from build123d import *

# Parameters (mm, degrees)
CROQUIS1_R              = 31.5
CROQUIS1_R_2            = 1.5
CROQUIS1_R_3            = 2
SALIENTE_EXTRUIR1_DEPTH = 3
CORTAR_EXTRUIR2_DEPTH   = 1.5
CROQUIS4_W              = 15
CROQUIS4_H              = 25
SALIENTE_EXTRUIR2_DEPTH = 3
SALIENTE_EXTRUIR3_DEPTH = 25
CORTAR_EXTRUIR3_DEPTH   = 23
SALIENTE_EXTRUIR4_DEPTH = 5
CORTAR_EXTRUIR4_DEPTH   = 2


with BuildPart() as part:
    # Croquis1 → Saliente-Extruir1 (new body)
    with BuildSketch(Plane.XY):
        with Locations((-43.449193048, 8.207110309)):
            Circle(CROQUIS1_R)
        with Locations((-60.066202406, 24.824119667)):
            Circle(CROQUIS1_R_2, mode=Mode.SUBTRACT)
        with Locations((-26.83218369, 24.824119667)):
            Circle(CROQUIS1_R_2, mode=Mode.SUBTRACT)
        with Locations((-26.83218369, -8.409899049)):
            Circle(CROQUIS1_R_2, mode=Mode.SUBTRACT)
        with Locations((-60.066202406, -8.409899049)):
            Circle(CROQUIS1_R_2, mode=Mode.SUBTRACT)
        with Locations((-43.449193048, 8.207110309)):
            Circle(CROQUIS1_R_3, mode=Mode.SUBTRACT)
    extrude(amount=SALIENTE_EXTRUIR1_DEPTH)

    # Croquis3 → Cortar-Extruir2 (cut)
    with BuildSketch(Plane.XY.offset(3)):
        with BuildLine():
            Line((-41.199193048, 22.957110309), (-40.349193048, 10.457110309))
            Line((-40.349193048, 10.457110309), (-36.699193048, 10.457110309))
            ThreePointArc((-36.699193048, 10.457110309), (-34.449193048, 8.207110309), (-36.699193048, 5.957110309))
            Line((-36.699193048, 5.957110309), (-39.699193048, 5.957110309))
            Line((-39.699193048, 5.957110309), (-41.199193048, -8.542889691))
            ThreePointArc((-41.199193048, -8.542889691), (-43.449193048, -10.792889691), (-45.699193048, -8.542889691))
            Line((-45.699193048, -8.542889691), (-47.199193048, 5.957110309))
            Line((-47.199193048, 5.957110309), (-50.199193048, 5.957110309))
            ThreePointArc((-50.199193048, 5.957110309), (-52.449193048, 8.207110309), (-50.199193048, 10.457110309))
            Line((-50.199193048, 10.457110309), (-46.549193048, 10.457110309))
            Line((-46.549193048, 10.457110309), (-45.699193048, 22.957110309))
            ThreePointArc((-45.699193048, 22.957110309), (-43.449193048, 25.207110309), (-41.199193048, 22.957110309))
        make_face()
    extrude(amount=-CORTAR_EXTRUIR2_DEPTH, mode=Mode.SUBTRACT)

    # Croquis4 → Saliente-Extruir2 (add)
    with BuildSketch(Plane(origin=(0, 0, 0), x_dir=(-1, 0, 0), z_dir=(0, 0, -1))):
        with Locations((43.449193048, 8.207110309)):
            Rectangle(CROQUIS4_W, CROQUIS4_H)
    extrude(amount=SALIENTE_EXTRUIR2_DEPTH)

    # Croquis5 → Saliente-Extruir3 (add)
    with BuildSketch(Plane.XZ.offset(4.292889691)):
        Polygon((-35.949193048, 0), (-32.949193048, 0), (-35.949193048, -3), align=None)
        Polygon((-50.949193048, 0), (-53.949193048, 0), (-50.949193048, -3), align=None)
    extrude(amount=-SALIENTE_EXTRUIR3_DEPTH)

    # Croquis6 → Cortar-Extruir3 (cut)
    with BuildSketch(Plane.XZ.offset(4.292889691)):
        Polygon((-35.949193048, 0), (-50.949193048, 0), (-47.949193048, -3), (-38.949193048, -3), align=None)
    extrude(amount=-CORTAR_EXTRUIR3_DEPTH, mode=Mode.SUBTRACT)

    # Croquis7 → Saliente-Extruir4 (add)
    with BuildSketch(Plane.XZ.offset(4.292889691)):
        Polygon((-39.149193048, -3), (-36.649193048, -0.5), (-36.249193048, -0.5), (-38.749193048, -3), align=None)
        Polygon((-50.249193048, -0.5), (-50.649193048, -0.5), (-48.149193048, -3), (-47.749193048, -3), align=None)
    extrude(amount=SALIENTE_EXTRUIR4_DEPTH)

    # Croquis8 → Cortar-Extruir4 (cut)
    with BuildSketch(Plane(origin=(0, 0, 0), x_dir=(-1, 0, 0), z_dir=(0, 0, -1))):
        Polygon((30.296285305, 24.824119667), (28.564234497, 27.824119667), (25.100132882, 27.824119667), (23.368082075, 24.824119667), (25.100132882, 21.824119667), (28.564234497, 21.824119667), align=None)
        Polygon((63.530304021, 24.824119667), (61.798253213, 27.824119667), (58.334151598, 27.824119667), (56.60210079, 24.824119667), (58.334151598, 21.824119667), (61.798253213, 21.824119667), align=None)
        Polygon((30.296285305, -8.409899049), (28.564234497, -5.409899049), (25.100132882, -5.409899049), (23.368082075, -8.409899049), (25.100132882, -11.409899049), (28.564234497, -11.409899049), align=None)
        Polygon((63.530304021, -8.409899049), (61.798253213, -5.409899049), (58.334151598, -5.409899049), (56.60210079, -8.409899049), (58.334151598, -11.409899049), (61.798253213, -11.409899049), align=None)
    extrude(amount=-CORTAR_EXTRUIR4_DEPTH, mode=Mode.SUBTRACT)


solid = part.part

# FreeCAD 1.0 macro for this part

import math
import FreeCAD as App
import Part
import Sketcher

V = App.Vector
Q = App.Units.Quantity

doc = App.newDocument("Part")
body = doc.addObject("PartDesign::Body", "Body")

# Sketch on XY plane
sketch1 = body.newObject("Sketcher::SketchObject", "Sketch")
sketch1.AttachmentSupport = (doc.getObject("XY_Plane"), [""])
sketch1.MapMode = "FlatFace"
sketch1.addGeometry([
    Part.Circle(V(-43.449193, 8.20711, 0), V(0, 0, 1), 31.5),  # 0
    Part.Circle(V(-60.066202, -8.409899, 0), V(0, 0, 1), 1.5),  # 1
    Part.Circle(V(-26.832184, -8.409899, 0), V(0, 0, 1), 1.5),  # 2
    Part.Circle(V(-60.066202, 24.82412, 0), V(0, 0, 1), 1.5),  # 3
    Part.Circle(V(-43.449193, 8.20711, 0), V(0, 0, 1), 2),  # 4
    Part.Circle(V(-26.832184, 24.82412, 0), V(0, 0, 1), 1.5),  # 5
], False)
sketch1.addConstraint([
    Sketcher.Constraint("Coincident", 4, 3, 0, 3),
    Sketcher.Constraint("Equal", 1, 2),
    Sketcher.Constraint("Equal", 2, 3),
    Sketcher.Constraint("Equal", 3, 5),
    Sketcher.Constraint("Horizontal", 1, 3, 2, 3),
    Sketcher.Constraint("Horizontal", 3, 3, 5, 3),
    Sketcher.Constraint("Vertical", 1, 3, 3, 3),
    Sketcher.Constraint("Vertical", 2, 3, 5, 3),
    Sketcher.Constraint("Diameter", 0, 63.0),
    Sketcher.Constraint("Diameter", 1, 3.0),
    Sketcher.Constraint("Diameter", 4, 4.0),
    Sketcher.Constraint("DistanceY", 1, 3, -1, 1, 8.409899),
    Sketcher.Constraint("DistanceY", -1, 1, 0, 3, 8.20711),
    Sketcher.Constraint("DistanceY", -1, 1, 3, 3, 24.82412),
    Sketcher.Constraint("DistanceX", 1, 3, 0, 3, 16.617009),
    Sketcher.Constraint("DistanceX", 0, 3, 2, 3, 16.617009),
    Sketcher.Constraint("DistanceX", 0, 3, -1, 1, 43.449193),
])
pad1 = body.newObject("PartDesign::Pad", "Pad")
pad1.Profile = sketch1
pad1.Length = 3

# Sketch on XY plane
sketch2 = body.newObject("Sketcher::SketchObject", "Sketch001")
sketch2.AttachmentSupport = (doc.getObject("XY_Plane"), [""])
sketch2.MapMode = "FlatFace"
sketch2.AttachmentOffset = App.Placement(V(0, 0, 3), App.Rotation())
sketch2.addGeometry([
    Part.LineSegment(V(-40.349193, 10.45711, 0), V(-41.199193, 22.95711, 0)),  # 0
    Part.ArcOfCircle(Part.Circle(V(-43.449193, 22.95711, 0), V(0, 0, 1), 2.25), math.radians(0), math.radians(180)),  # 1
    Part.LineSegment(V(-45.699193, 22.95711, 0), V(-46.549193, 10.45711, 0)),  # 2
    Part.LineSegment(V(-46.549193, 10.45711, 0), V(-50.199193, 10.45711, 0)),  # 3
    Part.ArcOfCircle(Part.Circle(V(-50.199193, 8.20711, 0), V(0, 0, 1), 2.25), math.radians(90), math.radians(270)),  # 4
    Part.LineSegment(V(-50.199193, 5.95711, 0), V(-47.199193, 5.95711, 0)),  # 5
    Part.LineSegment(V(-47.199193, 5.95711, 0), V(-45.699193, -8.54289, 0)),  # 6
    Part.ArcOfCircle(Part.Circle(V(-43.449193, -8.54289, 0), V(0, 0, 1), 2.25), math.radians(180), math.radians(360)),  # 7
    Part.LineSegment(V(-41.199193, -8.54289, 0), V(-39.699193, 5.95711, 0)),  # 8
    Part.LineSegment(V(-39.699193, 5.95711, 0), V(-36.699193, 5.95711, 0)),  # 9
    Part.ArcOfCircle(Part.Circle(V(-36.699193, 8.20711, 0), V(0, 0, 1), 2.25), math.radians(-90), math.radians(90)),  # 10
    Part.LineSegment(V(-36.699193, 10.45711, 0), V(-40.349193, 10.45711, 0)),  # 11
], False)
sketch2.addConstraint([
    Sketcher.Constraint("Coincident", 0, 2, 1, 1),
    Sketcher.Constraint("Coincident", 1, 2, 2, 1),
    Sketcher.Constraint("Coincident", 2, 2, 3, 1),
    Sketcher.Constraint("Tangent", 3, 2, 4, 1),
    Sketcher.Constraint("Tangent", 4, 2, 5, 1),
    Sketcher.Constraint("Coincident", 5, 2, 6, 1),
    Sketcher.Constraint("Coincident", 6, 2, 7, 1),
    Sketcher.Constraint("Coincident", 7, 2, 8, 1),
    Sketcher.Constraint("Coincident", 8, 2, 9, 1),
    Sketcher.Constraint("Tangent", 9, 2, 10, 1),
    Sketcher.Constraint("Tangent", 10, 2, 11, 1),
    Sketcher.Constraint("Coincident", 11, 2, 0, 1),
    Sketcher.Constraint("Horizontal", 3),
    Sketcher.Constraint("Horizontal", 5),
    Sketcher.Constraint("Horizontal", 9),
    Sketcher.Constraint("Horizontal", 11),
    Sketcher.Constraint("Equal", 1, 4),
    Sketcher.Constraint("Equal", 4, 7),
    Sketcher.Constraint("Equal", 7, 10),
    Sketcher.Constraint("Horizontal", 4, 3, 10, 3),
    Sketcher.Constraint("Horizontal", 1, 3, 0, 2),
    Sketcher.Constraint("Horizontal", 0, 2, 1, 2),
    Sketcher.Constraint("Horizontal", 7, 3, 6, 2),
    Sketcher.Constraint("Horizontal", 6, 2, 7, 2),
    Sketcher.Constraint("Vertical", 1, 3, 7, 3),
    Sketcher.Constraint("Equal", 5, 9),
    Sketcher.Constraint("Equal", 3, 11),
    Sketcher.Constraint("Equal", 0, 2),
    Sketcher.Constraint("DistanceX", 5, 1, 5, 2, 3.0),
    Sketcher.Constraint("Radius", 1, 2.25),
    Sketcher.Constraint("DistanceX", 4, 3, 0, 2, 9.0),
    Sketcher.Constraint("DistanceX", 3, 2, 3, 1, 3.65),
    Sketcher.Constraint("DistanceY", 7, 3, 1, 3, 31.5),
    Sketcher.Constraint("DistanceY", 2, 2, 1, 2, 12.5),
    Sketcher.Constraint("DistanceY", -1, 1, 1, 3, 22.95711),
    Sketcher.Constraint("DistanceX", 1, 3, -1, 1, 43.449193),
])
pocket1 = body.newObject("PartDesign::Pocket", "Pocket")
pocket1.Profile = sketch2
pocket1.Length = 1.5

# Sketch on XY plane
sketch3 = body.newObject("Sketcher::SketchObject", "Sketch002")
sketch3.AttachmentSupport = (doc.getObject("XY_Plane"), [""])
sketch3.MapMode = "FlatFace"
sketch3.addGeometry([
    Part.LineSegment(V(-35.949193, 20.70711, 0), V(-35.949193, -4.29289, 0)),
    Part.LineSegment(V(-35.949193, -4.29289, 0), V(-50.949193, -4.29289, 0)),
    Part.LineSegment(V(-50.949193, -4.29289, 0), V(-50.949193, 20.70711, 0)),
    Part.LineSegment(V(-50.949193, 20.70711, 0), V(-35.949193, 20.70711, 0)),
], False)
sketch3.addConstraint([
    Sketcher.Constraint("Coincident", 0, 2, 1, 1),
    Sketcher.Constraint("Coincident", 1, 2, 2, 1),
    Sketcher.Constraint("Coincident", 2, 2, 3, 1),
    Sketcher.Constraint("Coincident", 3, 2, 0, 1),
    Sketcher.Constraint("Vertical", 0),
    Sketcher.Constraint("Horizontal", 1),
    Sketcher.Constraint("Vertical", 2),
    Sketcher.Constraint("Horizontal", 3),
    Sketcher.Constraint("DistanceX", 1, 2, 1, 1, 15.0),
    Sketcher.Constraint("DistanceY", 0, 2, 0, 1, 25.0),
    Sketcher.Constraint("DistanceY", 0, 2, -1, 1, 4.29289),
    Sketcher.Constraint("DistanceX", 0, 2, -1, 1, 35.949193),
])
pad2 = body.newObject("PartDesign::Pad", "Pad001")
pad2.Profile = sketch3
pad2.Length = 3
pad2.Reversed = True

# Sketch on XZ plane
sketch4 = body.newObject("Sketcher::SketchObject", "Sketch003")
sketch4.AttachmentSupport = (doc.getObject("XZ_Plane"), [""])
sketch4.MapMode = "FlatFace"
sketch4.AttachmentOffset = App.Placement(V(0, 0, 4.29289), App.Rotation())
sketch4.addGeometry([
    Part.LineSegment(V(-32.949193, 0, 0), V(-35.949193, 0, 0)),  # 0
    Part.LineSegment(V(-35.949193, 0, 0), V(-35.949193, -3, 0)),  # 1
    Part.LineSegment(V(-35.949193, -3, 0), V(-32.949193, 0, 0)),  # 2
    Part.LineSegment(V(-50.949193, 0, 0), V(-53.949193, 0, 0)),  # 3
    Part.LineSegment(V(-53.949193, 0, 0), V(-50.949193, -3, 0)),  # 4
    Part.LineSegment(V(-50.949193, -3, 0), V(-50.949193, 0, 0)),  # 5
], False)
sketch4.addConstraint([
    Sketcher.Constraint("Coincident", 0, 2, 1, 1),
    Sketcher.Constraint("Coincident", 1, 2, 2, 1),
    Sketcher.Constraint("Coincident", 2, 2, 0, 1),
    Sketcher.Constraint("Coincident", 3, 2, 4, 1),
    Sketcher.Constraint("Coincident", 4, 2, 5, 1),
    Sketcher.Constraint("Coincident", 5, 2, 3, 1),
    Sketcher.Constraint("Horizontal", 0),
    Sketcher.Constraint("Vertical", 1),
    Sketcher.Constraint("Horizontal", 3),
    Sketcher.Constraint("Vertical", 5),
    Sketcher.Constraint("PointOnObject", 0, 2, -1),
    Sketcher.Constraint("PointOnObject", 3, 2, -1),
    Sketcher.Constraint("Perpendicular", 2, 4),
    Sketcher.Constraint("Horizontal", 1, 2, 4, 2),
    Sketcher.Constraint("Equal", 0, 3),
    Sketcher.Constraint("DistanceX", 0, 2, 0, 1, 3.0),
    Sketcher.Constraint("DistanceX", 3, 2, 0, 2, 18.0),
    Sketcher.Constraint("DistanceX", 0, 2, -1, 1, 35.949193),
])
pad3 = body.newObject("PartDesign::Pad", "Pad002")
pad3.Profile = sketch4
pad3.Length = 25
pad3.Reversed = True

# Sketch on XZ plane
sketch5 = body.newObject("Sketcher::SketchObject", "Sketch004")
sketch5.AttachmentSupport = (doc.getObject("XZ_Plane"), [""])
sketch5.MapMode = "FlatFace"
sketch5.AttachmentOffset = App.Placement(V(0, 0, 4.29289), App.Rotation())
sketch5.addGeometry([
    Part.LineSegment(V(-35.949193, 0, 0), V(-50.949193, 0, 0)),
    Part.LineSegment(V(-50.949193, 0, 0), V(-47.949193, -3, 0)),
    Part.LineSegment(V(-47.949193, -3, 0), V(-38.949193, -3, 0)),
    Part.LineSegment(V(-38.949193, -3, 0), V(-35.949193, 0, 0)),
], False)
sketch5.addConstraint([
    Sketcher.Constraint("Coincident", 0, 2, 1, 1),
    Sketcher.Constraint("Coincident", 1, 2, 2, 1),
    Sketcher.Constraint("Coincident", 2, 2, 3, 1),
    Sketcher.Constraint("Coincident", 3, 2, 0, 1),
    Sketcher.Constraint("Horizontal", 0),
    Sketcher.Constraint("Horizontal", 2),
    Sketcher.Constraint("PointOnObject", 0, 2, -1),
    Sketcher.Constraint("Perpendicular", 1, 3),
    Sketcher.Constraint("Equal", 1, 3),
    Sketcher.Constraint("DistanceX", 0, 2, 0, 1, 15.0),
    Sketcher.Constraint("DistanceX", 2, 1, 2, 2, 9.0),
    Sketcher.Constraint("DistanceX", 0, 2, -1, 1, 50.949193),
])
pocket2 = body.newObject("PartDesign::Pocket", "Pocket001")
pocket2.Profile = sketch5
pocket2.Length = 23

# Sketch on XZ plane
sketch6 = body.newObject("Sketcher::SketchObject", "Sketch005")
sketch6.AttachmentSupport = (doc.getObject("XZ_Plane"), [""])
sketch6.MapMode = "FlatFace"
sketch6.AttachmentOffset = App.Placement(V(0, 0, 4.29289), App.Rotation())
sketch6.addGeometry([
    Part.LineSegment(V(-36.649193, -0.5, 0), V(-39.149193, -3, 0)),  # 0
    Part.LineSegment(V(-39.149193, -3, 0), V(-38.749193, -3, 0)),  # 1
    Part.LineSegment(V(-38.749193, -3, 0), V(-36.249193, -0.5, 0)),  # 2
    Part.LineSegment(V(-36.249193, -0.5, 0), V(-36.649193, -0.5, 0)),  # 3
    Part.LineSegment(V(-50.249193, -0.5, 0), V(-50.649193, -0.5, 0)),  # 4
    Part.LineSegment(V(-50.649193, -0.5, 0), V(-48.149193, -3, 0)),  # 5
    Part.LineSegment(V(-48.149193, -3, 0), V(-47.749193, -3, 0)),  # 6
    Part.LineSegment(V(-47.749193, -3, 0), V(-50.249193, -0.5, 0)),  # 7
], False)
sketch6.addConstraint([
    Sketcher.Constraint("Coincident", 0, 2, 1, 1),
    Sketcher.Constraint("Coincident", 1, 2, 2, 1),
    Sketcher.Constraint("Coincident", 2, 2, 3, 1),
    Sketcher.Constraint("Coincident", 3, 2, 0, 1),
    Sketcher.Constraint("Coincident", 4, 2, 5, 1),
    Sketcher.Constraint("Coincident", 5, 2, 6, 1),
    Sketcher.Constraint("Coincident", 6, 2, 7, 1),
    Sketcher.Constraint("Coincident", 7, 2, 4, 1),
    Sketcher.Constraint("Horizontal", 1),
    Sketcher.Constraint("Horizontal", 3),
    Sketcher.Constraint("Horizontal", 4),
    Sketcher.Constraint("Horizontal", 6),
    Sketcher.Constraint("Parallel", 0, 2),
    Sketcher.Constraint("Perpendicular", 2, 5),
    Sketcher.Constraint("Parallel", 5, 7),
    Sketcher.Constraint("Horizontal", 3, 2, 4, 2),
    Sketcher.Constraint("Horizontal", 1, 2, 5, 2),
    Sketcher.Constraint("Equal", 3, 4),
    Sketcher.Constraint("Equal", 2, 5),
    Sketcher.Constraint("DistanceX", 1, 1, 1, 2, 0.4),
    Sketcher.Constraint("DistanceY", 0, 2, -1, 1, 3.0),
    Sketcher.Constraint("DistanceX", 4, 2, 3, 2, 14.0),
    Sketcher.Constraint("DistanceX", 5, 2, 0, 2, 9.0),
    Sketcher.Constraint("DistanceX", 0, 2, -1, 1, 39.149193),
])
pad4 = body.newObject("PartDesign::Pad", "Pad003")
pad4.Profile = sketch6
pad4.Length = 5

# Sketch on XY plane
sketch7 = body.newObject("Sketcher::SketchObject", "Sketch006")
sketch7.AttachmentSupport = (doc.getObject("XY_Plane"), [""])
sketch7.MapMode = "FlatFace"
sketch7.addGeometry([
    Part.LineSegment(V(-30.296285, 24.82412, 0), V(-28.564234, 27.82412, 0)),  # 0
    Part.LineSegment(V(-28.564234, 27.82412, 0), V(-25.100133, 27.82412, 0)),  # 1
    Part.LineSegment(V(-25.100133, 27.82412, 0), V(-23.368082, 24.82412, 0)),  # 2
    Part.LineSegment(V(-23.368082, 24.82412, 0), V(-25.100133, 21.82412, 0)),  # 3
    Part.LineSegment(V(-25.100133, 21.82412, 0), V(-28.564234, 21.82412, 0)),  # 4
    Part.LineSegment(V(-28.564234, 21.82412, 0), V(-30.296285, 24.82412, 0)),  # 5
    Part.LineSegment(V(-63.530304, 24.82412, 0), V(-61.798253, 27.82412, 0)),  # 6
    Part.LineSegment(V(-61.798253, 27.82412, 0), V(-58.334152, 27.82412, 0)),  # 7
    Part.LineSegment(V(-58.334152, 27.82412, 0), V(-56.602101, 24.82412, 0)),  # 8
    Part.LineSegment(V(-56.602101, 24.82412, 0), V(-58.334152, 21.82412, 0)),  # 9
    Part.LineSegment(V(-58.334152, 21.82412, 0), V(-61.798253, 21.82412, 0)),  # 10
    Part.LineSegment(V(-61.798253, 21.82412, 0), V(-63.530304, 24.82412, 0)),  # 11
    Part.LineSegment(V(-30.296285, -8.409899, 0), V(-28.564234, -5.409899, 0)),  # 12
    Part.LineSegment(V(-28.564234, -5.409899, 0), V(-25.100133, -5.409899, 0)),  # 13
    Part.LineSegment(V(-25.100133, -5.409899, 0), V(-23.368082, -8.409899, 0)),  # 14
    Part.LineSegment(V(-23.368082, -8.409899, 0), V(-25.100133, -11.409899, 0)),  # 15
    Part.LineSegment(V(-25.100133, -11.409899, 0), V(-28.564234, -11.409899, 0)),  # 16
    Part.LineSegment(V(-28.564234, -11.409899, 0), V(-30.296285, -8.409899, 0)),  # 17
    Part.LineSegment(V(-63.530304, -8.409899, 0), V(-61.798253, -5.409899, 0)),  # 18
    Part.LineSegment(V(-61.798253, -5.409899, 0), V(-58.334152, -5.409899, 0)),  # 19
    Part.LineSegment(V(-58.334152, -5.409899, 0), V(-56.602101, -8.409899, 0)),  # 20
    Part.LineSegment(V(-56.602101, -8.409899, 0), V(-58.334152, -11.409899, 0)),  # 21
    Part.LineSegment(V(-58.334152, -11.409899, 0), V(-61.798253, -11.409899, 0)),  # 22
    Part.LineSegment(V(-61.798253, -11.409899, 0), V(-63.530304, -8.409899, 0)),  # 23
], False)
sketch7.addConstraint([
    Sketcher.Constraint("Coincident", 0, 2, 1, 1),
    Sketcher.Constraint("Coincident", 1, 2, 2, 1),
    Sketcher.Constraint("Coincident", 2, 2, 3, 1),
    Sketcher.Constraint("Coincident", 3, 2, 4, 1),
    Sketcher.Constraint("Coincident", 4, 2, 5, 1),
    Sketcher.Constraint("Coincident", 5, 2, 0, 1),
    Sketcher.Constraint("Coincident", 6, 2, 7, 1),
    Sketcher.Constraint("Coincident", 7, 2, 8, 1),
    Sketcher.Constraint("Coincident", 8, 2, 9, 1),
    Sketcher.Constraint("Coincident", 9, 2, 10, 1),
    Sketcher.Constraint("Coincident", 10, 2, 11, 1),
    Sketcher.Constraint("Coincident", 11, 2, 6, 1),
    Sketcher.Constraint("Coincident", 12, 2, 13, 1),
    Sketcher.Constraint("Coincident", 13, 2, 14, 1),
    Sketcher.Constraint("Coincident", 14, 2, 15, 1),
    Sketcher.Constraint("Coincident", 15, 2, 16, 1),
    Sketcher.Constraint("Coincident", 16, 2, 17, 1),
    Sketcher.Constraint("Coincident", 17, 2, 12, 1),
    Sketcher.Constraint("Coincident", 18, 2, 19, 1),
    Sketcher.Constraint("Coincident", 19, 2, 20, 1),
    Sketcher.Constraint("Coincident", 20, 2, 21, 1),
    Sketcher.Constraint("Coincident", 21, 2, 22, 1),
    Sketcher.Constraint("Coincident", 22, 2, 23, 1),
    Sketcher.Constraint("Coincident", 23, 2, 18, 1),
    Sketcher.Constraint("Horizontal", 1),
    Sketcher.Constraint("Horizontal", 4),
    Sketcher.Constraint("Horizontal", 7),
    Sketcher.Constraint("Horizontal", 10),
    Sketcher.Constraint("Horizontal", 13),
    Sketcher.Constraint("Horizontal", 16),
    Sketcher.Constraint("Horizontal", 19),
    Sketcher.Constraint("Horizontal", 22),
    Sketcher.Constraint("Parallel", 0, 3),
    Sketcher.Constraint("Parallel", 2, 5),
    Sketcher.Constraint("Parallel", 3, 6),
    Sketcher.Constraint("Parallel", 5, 8),
    Sketcher.Constraint("Parallel", 6, 9),
    Sketcher.Constraint("Parallel", 8, 11),
    Sketcher.Constraint("Parallel", 9, 12),
    Sketcher.Constraint("Parallel", 11, 14),
    Sketcher.Constraint("Parallel", 12, 15),
    Sketcher.Constraint("Parallel", 14, 17),
    Sketcher.Constraint("Parallel", 15, 18),
    Sketcher.Constraint("Parallel", 17, 20),
    Sketcher.Constraint("Parallel", 18, 21),
    Sketcher.Constraint("Parallel", 20, 23),
    Sketcher.Constraint("Horizontal", 2, 2, 5, 2),
    Sketcher.Constraint("Horizontal", 1, 2, 6, 2),
    Sketcher.Constraint("Horizontal", 5, 2, 8, 2),
    Sketcher.Constraint("Horizontal", 4, 2, 9, 2),
    Sketcher.Constraint("Horizontal", 8, 2, 11, 2),
    Sketcher.Constraint("Horizontal", 14, 2, 17, 2),
    Sketcher.Constraint("Horizontal", 13, 2, 18, 2),
    Sketcher.Constraint("Horizontal", 17, 2, 20, 2),
    Sketcher.Constraint("Horizontal", 16, 2, 21, 2),
    Sketcher.Constraint("Horizontal", 20, 2, 23, 2),
    Sketcher.Constraint("Vertical", 1, 2, 3, 2),
    Sketcher.Constraint("Vertical", 0, 2, 4, 2),
    Sketcher.Constraint("Vertical", 4, 2, 12, 2),
    Sketcher.Constraint("Vertical", 3, 2, 13, 2),
    Sketcher.Constraint("Vertical", 2, 2, 14, 2),
    Sketcher.Constraint("Vertical", 13, 2, 15, 2),
    Sketcher.Constraint("Vertical", 10, 2, 18, 2),
    Sketcher.Constraint("Vertical", 9, 2, 19, 2),
    Sketcher.Constraint("Equal", 4, 7),
    Sketcher.Constraint("Angle", 0, Q("60 deg")),
    Sketcher.Constraint("DistanceY", 2, 2, 1, 2, 3.0),
    Sketcher.Constraint("DistanceX", 1, 1, 1, 2, 3.464102),
    Sketcher.Constraint("DistanceX", 8, 2, -1, 1, 56.602101),
    Sketcher.Constraint("DistanceY", 12, 2, -1, 1, 5.409899),
    Sketcher.Constraint("DistanceY", -1, 1, 0, 2, 27.82412),
    Sketcher.Constraint("DistanceX", 6, 2, 0, 2, 33.234019),
])
pocket3 = body.newObject("PartDesign::Pocket", "Pocket002")
pocket3.Profile = sketch7
pocket3.Length = 2
pocket3.Reversed = True

doc.recompute()
